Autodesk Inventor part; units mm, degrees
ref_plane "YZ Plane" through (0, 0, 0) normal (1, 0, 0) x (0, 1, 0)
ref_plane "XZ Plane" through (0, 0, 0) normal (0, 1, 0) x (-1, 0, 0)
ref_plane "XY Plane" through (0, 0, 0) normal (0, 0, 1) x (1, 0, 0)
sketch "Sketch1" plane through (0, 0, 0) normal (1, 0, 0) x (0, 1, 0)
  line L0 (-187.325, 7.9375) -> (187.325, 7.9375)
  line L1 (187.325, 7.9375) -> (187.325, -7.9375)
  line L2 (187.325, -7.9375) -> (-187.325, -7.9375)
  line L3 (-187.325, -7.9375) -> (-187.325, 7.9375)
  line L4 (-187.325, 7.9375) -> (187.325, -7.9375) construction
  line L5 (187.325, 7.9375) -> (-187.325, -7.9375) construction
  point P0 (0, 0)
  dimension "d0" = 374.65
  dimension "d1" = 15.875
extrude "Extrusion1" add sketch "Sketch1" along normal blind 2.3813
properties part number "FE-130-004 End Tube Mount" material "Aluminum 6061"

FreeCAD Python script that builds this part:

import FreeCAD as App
import Part
import Sketcher
from FreeCAD import Vector
Q = App.Units.Quantity

doc = App.newDocument("Part")
body = doc.addObject("PartDesign::Body", "Body")

# Sketch on YZ plane
sketch1 = doc.addObject("Sketcher::SketchObject", "Sketch")
body.addObject(sketch1)
sketch1.AttachmentSupport = (doc.YZ_Plane, [""])
sketch1.MapMode = "FlatFace"
sketch1.addGeometry(Part.LineSegment(Vector(187, 8, 0), Vector(-187, 8, 0)), False)
sketch1.addGeometry(Part.LineSegment(Vector(-187, 8, 0), Vector(-187, -8, 0)), False)
sketch1.addGeometry(Part.LineSegment(Vector(-187, -8, 0), Vector(187, -8, 0)), False)
sketch1.addGeometry(Part.LineSegment(Vector(187, -8, 0), Vector(187, 8, 0)), False)
sketch1.addConstraint(Sketcher.Constraint("Coincident", 0, 2, 1, 1))
sketch1.addConstraint(Sketcher.Constraint("Coincident", 1, 2, 2, 1))
sketch1.addConstraint(Sketcher.Constraint("Coincident", 2, 2, 3, 1))
sketch1.addConstraint(Sketcher.Constraint("Coincident", 3, 2, 0, 1))
sketch1.addConstraint(Sketcher.Constraint("Horizontal", 0))
sketch1.addConstraint(Sketcher.Constraint("Vertical", 1))
sketch1.addConstraint(Sketcher.Constraint("Horizontal", 2))
sketch1.addConstraint(Sketcher.Constraint("Vertical", 3))
sketch1.addConstraint(Sketcher.Constraint("Symmetric", 0, 2, 2, 2, -1, 1))
sketch1.addConstraint(Sketcher.Constraint("DistanceX", 0, 2, 0, 1, Q("14.75 in")))
sketch1.addConstraint(Sketcher.Constraint("DistanceY", 1, 2, 1, 1, Q("0.625 in")))
pad1 = doc.addObject("PartDesign::Pad", "Pad")
body.addObject(pad1)
pad1.Profile = sketch1
pad1.Length = Q("0.093752 in")

doc.recompute()
